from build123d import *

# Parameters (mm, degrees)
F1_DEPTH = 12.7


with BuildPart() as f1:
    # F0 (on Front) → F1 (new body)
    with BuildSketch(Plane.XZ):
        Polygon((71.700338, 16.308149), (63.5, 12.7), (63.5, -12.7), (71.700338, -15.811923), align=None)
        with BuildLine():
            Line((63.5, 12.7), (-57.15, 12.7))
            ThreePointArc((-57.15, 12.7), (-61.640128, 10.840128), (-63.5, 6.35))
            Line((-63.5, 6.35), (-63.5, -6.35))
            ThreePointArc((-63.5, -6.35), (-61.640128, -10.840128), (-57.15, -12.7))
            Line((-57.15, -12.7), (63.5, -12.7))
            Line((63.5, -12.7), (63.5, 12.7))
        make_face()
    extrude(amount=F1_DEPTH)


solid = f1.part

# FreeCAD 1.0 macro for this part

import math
import FreeCAD as App
import Part
import Sketcher
from FreeCAD import Vector
Q = App.Units.Quantity

doc = App.newDocument("Part")
params = doc.addObject("Spreadsheet::Sheet", "Params")
for row, (alias, value) in enumerate([
    ("sketch1_radius", "0.25 in"),
    ("sketch1_height", "0.5 in"),
    ("pad1_length", "0.5 in"),
], start=1):
    params.set(f"A{row}", alias)
    params.set(f"B{row}", "=" + value)
    params.setAlias(f"B{row}", alias)

body = doc.addObject("PartDesign::Body", "Body")

# Sketch on XZ plane
sketch1 = body.newObject("Sketcher::SketchObject", "Sketch")
sketch1.AttachmentSupport = (doc.getObject("XZ_Plane"), [""])
sketch1.MapMode = "FlatFace"
sketch1.addGeometry([
    Part.LineSegment(Vector(72, 16, 0), Vector(64, 13, 0)),  # 0
    Part.LineSegment(Vector(64, 13, 0), Vector(-57, 13, 0)),  # 1
    Part.ArcOfCircle(Part.Circle(Vector(-57, 6, 0), Vector(0, 0, 1), 6), math.radians(90), math.radians(180)),  # 2
    Part.LineSegment(Vector(-64, 6, 0), Vector(-64, -6, 0)),  # 3
    Part.ArcOfCircle(Part.Circle(Vector(-57, -6, 0), Vector(0, 0, 1), 6), math.radians(-180), math.radians(-90)),  # 4
    Part.LineSegment(Vector(-57, -13, 0), Vector(64, -13, 0)),  # 5
    Part.LineSegment(Vector(64, -13, 0), Vector(72, -16, 0)),  # 6
    Part.LineSegment(Vector(72, -16, 0), Vector(72, 16, 0)),  # 7
], False)
sketch1.addConstraint([
    Sketcher.Constraint("Coincident", 0, 2, 1, 1),
    Sketcher.Constraint("Tangent", 1, 2, 2, 1),
    Sketcher.Constraint("Tangent", 2, 2, 3, 1),
    Sketcher.Constraint("Tangent", 3, 2, 4, 1),
    Sketcher.Constraint("Tangent", 4, 2, 5, 1),
    Sketcher.Constraint("Coincident", 5, 2, 6, 1),
    Sketcher.Constraint("Coincident", 6, 2, 7, 1),
    Sketcher.Constraint("Coincident", 7, 2, 0, 1),
    Sketcher.Constraint("Horizontal", 1),
    Sketcher.Constraint("Vertical", 3),
    Sketcher.Constraint("Horizontal", 5),
    Sketcher.Constraint("Vertical", 7),
    Sketcher.Constraint("Equal", 2, 4),
    Sketcher.Constraint("Symmetric", 0, 2, 5, 2, -1),
    Sketcher.Constraint("Radius", 2, Q("0.25 in")),
    Sketcher.Constraint("DistanceY", 3, 2, 3, 1, Q("0.5 in")),
    Sketcher.Constraint("DistanceX", 2, 2, 0, 2, Q("5 in")),
    Sketcher.Constraint("DistanceX", -1, 1, 0, 2, Q("2.5 in")),
    Sketcher.Constraint("DistanceY", 7, 1, 7, 2, 32.120072),
    Sketcher.Constraint("DistanceX", -1, 1, 6, 2, 71.700338),
    Sketcher.Constraint("DistanceY", -1, 1, 7, 2, 16.308149),
])
sketch1.setExpression("Constraints[14]", "Params.sketch1_radius")
sketch1.setExpression("Constraints[15]", "Params.sketch1_height")
pad1 = body.newObject("PartDesign::Pad", "Pad")
pad1.Profile = sketch1
pad1.setExpression("Length", "Params.pad1_length")

doc.recompute()
